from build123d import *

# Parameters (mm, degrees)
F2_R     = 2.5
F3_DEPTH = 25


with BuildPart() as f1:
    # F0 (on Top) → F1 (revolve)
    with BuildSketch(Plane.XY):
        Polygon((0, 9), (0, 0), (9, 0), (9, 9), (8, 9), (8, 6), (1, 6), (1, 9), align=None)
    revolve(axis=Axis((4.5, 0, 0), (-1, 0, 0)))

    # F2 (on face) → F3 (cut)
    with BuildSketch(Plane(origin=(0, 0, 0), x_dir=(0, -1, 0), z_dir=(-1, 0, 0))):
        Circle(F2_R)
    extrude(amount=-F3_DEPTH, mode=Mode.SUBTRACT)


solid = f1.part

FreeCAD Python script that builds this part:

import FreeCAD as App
import Part
import Sketcher
Q = App.Units.Quantity


def add_polygon(sketch, points):
    """Adds a closed chain of lines whose ends are joined by coincident constraints."""
    first, n = sketch.GeometryCount, len(points)
    for a, b in zip(points, points[1:] + points[:1]):
        sketch.addGeometry(Part.LineSegment(App.Vector(*a, 0), App.Vector(*b, 0)), False)
    for i in range(n):
        sketch.addConstraint(Sketcher.Constraint("Coincident", first + i, 2, first + (i + 1) % n, 1))

doc = App.newDocument("Part")
body = doc.addObject("PartDesign::Body", "Body")

sketch1 = body.newObject("Sketcher::SketchObject", "Sketch")
sketch1.AttachmentSupport = (doc.getObject("XY_Plane"), [""])
sketch1.MapMode = "FlatFace"
add_polygon(sketch1, [(0, 9), (0, 0), (9, 0), (9, 9), (8, 9), (8, 6), (1, 6), (1, 9)])
sketch1.addConstraint([
    Sketcher.Constraint("Vertical", 0),
    Sketcher.Constraint("Horizontal", 1),
    Sketcher.Constraint("Vertical", 2),
    Sketcher.Constraint("Horizontal", 3),
    Sketcher.Constraint("Vertical", 4),
    Sketcher.Constraint("Horizontal", 5),
    Sketcher.Constraint("Vertical", 6),
    Sketcher.Constraint("Horizontal", 7),
    Sketcher.Constraint("Coincident", 0, 2, -1, 1),
    Sketcher.Constraint("Horizontal", 3, 2, 6, 2),
    Sketcher.Constraint("Equal", 3, 7),
    Sketcher.Constraint("Equal", 1, 0),
    Sketcher.Constraint("DistanceX", 1, 1, 1, 2, Q("9 mm")),
    Sketcher.Constraint("DistanceX", 3, 2, 3, 1, Q("1 mm")),
    Sketcher.Constraint("DistanceY", 4, 2, 4, 1, Q("3 mm")),
])
revolution = body.newObject("PartDesign::Revolution", "Revolution")
revolution.Profile = sketch1
revolution.ReferenceAxis = (sketch1, ["H_Axis"])
revolution.Angle = 360

sketch2 = body.newObject("Sketcher::SketchObject", "Sketch001")
sketch2.AttachmentSupport = (doc.getObject("YZ_Plane"), [""])
sketch2.MapMode = "FlatFace"
sketch2.addGeometry(Part.Circle(App.Vector(0, 0, 0), App.Vector(0, 0, 1), 2.5), False)
sketch2.addConstraint([
    Sketcher.Constraint("Coincident", 0, 3, -1, 1),
    Sketcher.Constraint("Diameter", 0, Q("5 mm")),
])
pocket1 = body.newObject("PartDesign::Pocket", "Pocket")
pocket1.Profile = sketch2
pocket1.Length = 25
pocket1.Reversed = True

doc.recompute()
